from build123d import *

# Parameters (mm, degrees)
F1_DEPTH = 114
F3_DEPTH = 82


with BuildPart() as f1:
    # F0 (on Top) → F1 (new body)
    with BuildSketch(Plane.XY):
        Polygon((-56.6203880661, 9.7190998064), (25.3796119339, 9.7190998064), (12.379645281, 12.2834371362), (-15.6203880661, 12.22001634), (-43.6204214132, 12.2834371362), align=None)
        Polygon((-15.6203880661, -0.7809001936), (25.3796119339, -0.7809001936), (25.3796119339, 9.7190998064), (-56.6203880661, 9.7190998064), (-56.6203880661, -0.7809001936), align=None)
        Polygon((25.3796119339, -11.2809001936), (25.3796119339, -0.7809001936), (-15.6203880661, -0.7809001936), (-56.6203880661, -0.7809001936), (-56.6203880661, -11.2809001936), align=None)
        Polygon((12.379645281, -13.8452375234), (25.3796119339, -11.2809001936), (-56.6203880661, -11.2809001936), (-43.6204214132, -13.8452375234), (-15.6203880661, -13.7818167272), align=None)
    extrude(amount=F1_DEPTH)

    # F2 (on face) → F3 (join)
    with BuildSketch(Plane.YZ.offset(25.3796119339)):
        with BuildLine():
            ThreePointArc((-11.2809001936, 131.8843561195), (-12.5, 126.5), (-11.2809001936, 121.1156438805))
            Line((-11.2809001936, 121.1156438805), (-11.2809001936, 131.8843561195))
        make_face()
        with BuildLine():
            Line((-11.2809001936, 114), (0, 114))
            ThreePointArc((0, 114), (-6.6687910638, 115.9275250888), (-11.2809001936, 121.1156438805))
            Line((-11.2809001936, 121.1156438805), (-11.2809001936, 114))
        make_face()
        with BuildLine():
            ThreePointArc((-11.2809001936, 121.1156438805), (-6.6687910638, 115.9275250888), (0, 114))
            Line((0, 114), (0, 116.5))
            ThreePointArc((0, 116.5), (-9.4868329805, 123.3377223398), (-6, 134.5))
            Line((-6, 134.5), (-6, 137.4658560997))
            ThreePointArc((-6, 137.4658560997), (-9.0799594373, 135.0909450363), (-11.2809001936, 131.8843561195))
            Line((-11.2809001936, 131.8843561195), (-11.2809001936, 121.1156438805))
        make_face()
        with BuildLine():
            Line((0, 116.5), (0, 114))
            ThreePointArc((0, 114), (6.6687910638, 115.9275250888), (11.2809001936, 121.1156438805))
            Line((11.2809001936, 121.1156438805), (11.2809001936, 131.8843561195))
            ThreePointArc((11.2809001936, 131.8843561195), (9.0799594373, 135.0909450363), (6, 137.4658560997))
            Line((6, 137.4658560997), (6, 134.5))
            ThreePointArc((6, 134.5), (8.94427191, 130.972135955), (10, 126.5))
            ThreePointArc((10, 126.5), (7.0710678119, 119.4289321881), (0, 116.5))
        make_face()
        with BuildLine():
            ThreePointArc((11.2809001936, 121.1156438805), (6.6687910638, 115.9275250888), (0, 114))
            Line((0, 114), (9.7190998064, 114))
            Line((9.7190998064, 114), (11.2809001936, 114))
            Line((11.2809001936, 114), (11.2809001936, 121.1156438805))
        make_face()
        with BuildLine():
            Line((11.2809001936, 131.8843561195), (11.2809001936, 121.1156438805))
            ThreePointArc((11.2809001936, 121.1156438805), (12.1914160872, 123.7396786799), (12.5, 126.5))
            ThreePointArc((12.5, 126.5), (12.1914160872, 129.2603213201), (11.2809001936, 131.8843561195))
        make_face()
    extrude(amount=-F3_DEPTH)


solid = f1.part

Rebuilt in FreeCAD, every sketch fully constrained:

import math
import FreeCAD as App
import Part
import Sketcher
from FreeCAD import Vector
Q = App.Units.Quantity

doc = App.newDocument("Part")
params = doc.addObject("Spreadsheet::Sheet", "Params")
for row, (alias, value) in enumerate([
    ("sketch1_height", "21 mm"),
    ("pad1_length", "114 mm"),
    ("sketch2_radius", "10 mm"),
    ("sketch2_radius2", "12.5 mm"),
    ("pad2_length", "82 mm"),
], start=1):
    params.set(f"A{row}", alias)
    params.set(f"B{row}", "=" + value)
    params.setAlias(f"B{row}", alias)

body = doc.addObject("PartDesign::Body", "Body")

sketch1 = body.newObject("Sketcher::SketchObject", "Sketch")
sketch1.AttachmentSupport = (doc.getObject("XY_Plane"), [""])
sketch1.MapMode = "FlatFace"
sketch1.addGeometry([
    Part.LineSegment(Vector(25.379612, 9.7191, 0), Vector(12.379645, 12.283437, 0)),
    Part.LineSegment(Vector(12.379645, 12.283437, 0), Vector(-15.620388, 12.220016, 0)),
    Part.LineSegment(Vector(-15.620388, 12.220016, 0), Vector(-43.620421, 12.283437, 0)),
    Part.LineSegment(Vector(-43.620421, 12.283437, 0), Vector(-56.620388, 9.7191, 0)),
    Part.LineSegment(Vector(-56.620388, 9.7191, 0), Vector(-56.620388, -11.2809, 0)),
    Part.LineSegment(Vector(-56.620388, -11.2809, 0), Vector(-43.620421, -13.845238, 0)),
    Part.LineSegment(Vector(-43.620421, -13.845238, 0), Vector(-15.620388, -13.781817, 0)),
    Part.LineSegment(Vector(-15.620388, -13.781817, 0), Vector(12.379645, -13.845238, 0)),
    Part.LineSegment(Vector(12.379645, -13.845238, 0), Vector(25.379612, -11.2809, 0)),
    Part.LineSegment(Vector(25.379612, -11.2809, 0), Vector(25.379612, 9.7191, 0)),
], False)
sketch1.addConstraint([
    Sketcher.Constraint("Coincident", 0, 2, 1, 1),
    Sketcher.Constraint("Coincident", 1, 2, 2, 1),
    Sketcher.Constraint("Coincident", 2, 2, 3, 1),
    Sketcher.Constraint("Coincident", 3, 2, 4, 1),
    Sketcher.Constraint("Coincident", 4, 2, 5, 1),
    Sketcher.Constraint("Coincident", 5, 2, 6, 1),
    Sketcher.Constraint("Coincident", 6, 2, 7, 1),
    Sketcher.Constraint("Coincident", 7, 2, 8, 1),
    Sketcher.Constraint("Coincident", 8, 2, 9, 1),
    Sketcher.Constraint("Coincident", 9, 2, 0, 1),
    Sketcher.Constraint("Vertical", 4),
    Sketcher.Constraint("Vertical", 9),
    Sketcher.Constraint("Parallel", 0, 5),
    Sketcher.Constraint("Parallel", 1, 6),
    Sketcher.Constraint("Parallel", 2, 7),
    Sketcher.Constraint("Parallel", 3, 8),
    Sketcher.Constraint("Horizontal", 0, 2, 2, 2),
    Sketcher.Constraint("Horizontal", 5, 2, 7, 2),
    Sketcher.Constraint("Horizontal", 4, 2, 8, 2),
    Sketcher.Constraint("Horizontal", 3, 2, 9, 2),
    Sketcher.Constraint("Vertical", 2, 2, 5, 2),
    Sketcher.Constraint("Vertical", 1, 2, 6, 2),
    Sketcher.Constraint("Vertical", 0, 2, 7, 2),
    Sketcher.Constraint("DistanceY", 4, 2, 4, 1, Q("21 mm")),
    Sketcher.Constraint("DistanceX", 3, 2, 1, 2, Q("41 mm")),
    Sketcher.Constraint("DistanceY", -1, 1, 3, 2, Q("9.7191 mm")),
    Sketcher.Constraint("Distance", 0, Q("13.25047 mm")),
    Sketcher.Constraint("DistanceX", 1, 2, -1, 1, Q("15.620388 mm")),
    Sketcher.Constraint("DistanceX", 2, 2, -1, 1, Q("43.620421 mm")),
    Sketcher.Constraint("DistanceY", 1, 2, 0, 2, Q("0.063421 mm")),
])
sketch1.setExpression("Constraints[23]", "Params.sketch1_height")
pad1 = body.newObject("PartDesign::Pad", "Pad")
pad1.Profile = sketch1
pad1.setExpression("Length", "Params.pad1_length")

sketch2 = body.newObject("Sketcher::SketchObject", "Sketch001")
sketch2.AttachmentSupport = (doc.getObject("YZ_Plane"), [""])
sketch2.MapMode = "FlatFace"
sketch2.AttachmentOffset = App.Placement(Vector(0, 0, 25.379612), App.Rotation())
sketch2.addGeometry([
    Part.ArcOfCircle(Part.Circle(Vector(0, 126.5, 0), Vector(0, 0, 1), 12.5), math.radians(154), math.radians(206)),
    Part.LineSegment(Vector(-11.3, 121.1, 0), Vector(-11.3, 114, 0)),
    Part.LineSegment(Vector(-11.3, 114, 0), Vector(11.3, 114, 0)),
    Part.LineSegment(Vector(11.3, 114, 0), Vector(11.3, 121.1, 0)),
    Part.ArcOfCircle(Part.Circle(Vector(0, 126.5, 0), Vector(0, 0, 1), 12.5), math.radians(-26), math.radians(0)),
    Part.ArcOfCircle(Part.Circle(Vector(0, 126.5, 0), Vector(0, 0, 1), 12.5), math.radians(0), math.radians(26)),
    Part.ArcOfCircle(Part.Circle(Vector(0, 126.5, 0), Vector(0, 0, 1), 12.5), math.radians(26), math.radians(61)),
    Part.LineSegment(Vector(6, 137.5, 0), Vector(6, 134.5, 0)),
    Part.ArcOfCircle(Part.Circle(Vector(0, 126.5, 0), Vector(0, 0, 1), 10), math.radians(0), math.radians(53)),
    Part.ArcOfCircle(Part.Circle(Vector(0, 126.5, 0), Vector(0, 0, 1), 10), math.radians(-90), math.radians(0)),
    Part.ArcOfCircle(Part.Circle(Vector(0, 126.5, 0), Vector(0, 0, 1), 10), math.radians(127), math.radians(270)),
    Part.LineSegment(Vector(-6, 134.5, 0), Vector(-6, 137.5, 0)),
    Part.ArcOfCircle(Part.Circle(Vector(0, 126.5, 0), Vector(0, 0, 1), 12.5), math.radians(119), math.radians(154)),
], False)
sketch2.addConstraint([
    Sketcher.Constraint("Coincident", 0, 2, 1, 1),
    Sketcher.Constraint("Coincident", 1, 2, 2, 1),
    Sketcher.Constraint("Coincident", 2, 2, 3, 1),
    Sketcher.Constraint("Coincident", 3, 2, 4, 1),
    Sketcher.Constraint("Tangent", 4, 2, 5, 1),
    Sketcher.Constraint("Tangent", 5, 2, 6, 1),
    Sketcher.Constraint("Coincident", 6, 2, 7, 1),
    Sketcher.Constraint("Coincident", 7, 2, 8, 2),
    Sketcher.Constraint("Tangent", 8, 1, 9, 2),
    Sketcher.Constraint("Tangent", 9, 1, 10, 2),
    Sketcher.Constraint("Coincident", 10, 1, 11, 1),
    Sketcher.Constraint("Coincident", 11, 2, 12, 1),
    Sketcher.Constraint("Tangent", 12, 2, 0, 1),
    Sketcher.Constraint("Vertical", 1),
    Sketcher.Constraint("Horizontal", 2),
    Sketcher.Constraint("Vertical", 3),
    Sketcher.Constraint("Vertical", 7),
    Sketcher.Constraint("Vertical", 11),
    Sketcher.Constraint("Coincident", 4, 3, 0, 3),
    Sketcher.Constraint("Coincident", 6, 3, 0, 3),
    Sketcher.Constraint("Coincident", 8, 3, 0, 3),
    Sketcher.Constraint("Coincident", 10, 3, 0, 3),
    Sketcher.Constraint("Equal", 0, 4),
    Sketcher.Constraint("Equal", 6, 12),
    Sketcher.Constraint("Symmetric", 0, 2, 3, 2, -2),
    Sketcher.Constraint("PointOnObject", 9, 1, -2),
    Sketcher.Constraint("Horizontal", 12, 3, 4, 2),
    Sketcher.Constraint("Horizontal", 4, 2, 8, 1),
    Sketcher.Constraint("Horizontal", 7, 2, 10, 1),
    Sketcher.Constraint("Horizontal", 5, 2, 12, 2),
    Sketcher.Constraint("Vertical", 3, 2, 5, 2),
    Sketcher.Constraint("Radius", 8, Q("10 mm")),
    Sketcher.Constraint("Radius", 0, Q("12.5 mm")),
    Sketcher.Constraint("DistanceY", -1, 1, 1, 2, Q("114 mm")),
    Sketcher.Constraint("DistanceX", -1, 1, 6, 2, Q("6 mm")),
    Sketcher.Constraint("DistanceY", -1, 1, 0, 3, Q("126.5 mm")),
    Sketcher.Constraint("DistanceX", 2, 1, 2, 2, Q("22.5618 mm")),
])
sketch2.setExpression("Constraints[31]", "Params.sketch2_radius")
sketch2.setExpression("Constraints[32]", "Params.sketch2_radius2")
pad2 = body.newObject("PartDesign::Pad", "Pad001")
pad2.Profile = sketch2
pad2.setExpression("Length", "Params.pad2_length")
pad2.Reversed = True

doc.recompute()
